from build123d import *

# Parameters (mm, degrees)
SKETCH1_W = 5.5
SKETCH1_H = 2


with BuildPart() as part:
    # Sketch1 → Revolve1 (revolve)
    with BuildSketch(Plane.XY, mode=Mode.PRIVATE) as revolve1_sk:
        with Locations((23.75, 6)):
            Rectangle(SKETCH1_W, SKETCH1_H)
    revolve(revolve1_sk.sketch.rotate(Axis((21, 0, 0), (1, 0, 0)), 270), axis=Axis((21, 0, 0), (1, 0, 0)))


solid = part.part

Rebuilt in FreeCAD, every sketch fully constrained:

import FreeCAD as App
import Part
import Sketcher
from FreeCAD import Vector


def add_polygon(sketch, points):
    """Adds a closed chain of lines whose ends are joined by coincident constraints."""
    first, n = sketch.GeometryCount, len(points)
    for a, b in zip(points, points[1:] + points[:1]):
        sketch.addGeometry(Part.LineSegment(App.Vector(*a, 0), App.Vector(*b, 0)), False)
    for i in range(n):
        sketch.addConstraint(Sketcher.Constraint("Coincident", first + i, 2, first + (i + 1) % n, 1))

doc = App.newDocument("Part")
params = doc.addObject("Spreadsheet::Sheet", "Params")
for row, (alias, value) in enumerate([
    ("sketch1_height", "2 mm"),
    ("sketch1_width", "5.5 mm"),
    ("revolution_angle", "360 deg"),
], start=1):
    params.set(f"A{row}", alias)
    params.set(f"B{row}", "=" + value)
    params.setAlias(f"B{row}", alias)

body = doc.addObject("PartDesign::Body", "Body")

sketch1 = doc.addObject("Sketcher::SketchObject", "Sketch")
body.addObject(sketch1)
sketch1.AttachmentSupport = (doc.XY_Plane, [""])
sketch1.MapMode = "FlatFace"
add_polygon(sketch1, [(21, 7), (21, 5), (26.5, 5), (26.5, 7)])
sketch1.addConstraint(Sketcher.Constraint("Vertical", 0))
sketch1.addConstraint(Sketcher.Constraint("Horizontal", 1))
sketch1.addConstraint(Sketcher.Constraint("Vertical", 2))
sketch1.addConstraint(Sketcher.Constraint("Horizontal", 3))
sketch1.addConstraint(Sketcher.Constraint("DistanceY", 0, 2, 0, 1, 2.0))
sketch1.addConstraint(Sketcher.Constraint("DistanceX", 1, 1, 1, 2, 5.5))
sketch1.addConstraint(Sketcher.Constraint("DistanceX", -1, 1, 0, 2, 21.0))
sketch1.addConstraint(Sketcher.Constraint("DistanceY", -1, 1, 0, 2, 5.0))
sketch1.setExpression("Constraints[8]", "Params.sketch1_height")
sketch1.setExpression("Constraints[9]", "Params.sketch1_width")
revolution = doc.addObject("PartDesign::Revolution", "Revolution")
body.addObject(revolution)
revolution.Profile = sketch1
revolution.ReferenceAxis = (sketch1, ["H_Axis"])
revolution.setExpression("Angle", "Params.revolution_angle")

doc.recompute()
